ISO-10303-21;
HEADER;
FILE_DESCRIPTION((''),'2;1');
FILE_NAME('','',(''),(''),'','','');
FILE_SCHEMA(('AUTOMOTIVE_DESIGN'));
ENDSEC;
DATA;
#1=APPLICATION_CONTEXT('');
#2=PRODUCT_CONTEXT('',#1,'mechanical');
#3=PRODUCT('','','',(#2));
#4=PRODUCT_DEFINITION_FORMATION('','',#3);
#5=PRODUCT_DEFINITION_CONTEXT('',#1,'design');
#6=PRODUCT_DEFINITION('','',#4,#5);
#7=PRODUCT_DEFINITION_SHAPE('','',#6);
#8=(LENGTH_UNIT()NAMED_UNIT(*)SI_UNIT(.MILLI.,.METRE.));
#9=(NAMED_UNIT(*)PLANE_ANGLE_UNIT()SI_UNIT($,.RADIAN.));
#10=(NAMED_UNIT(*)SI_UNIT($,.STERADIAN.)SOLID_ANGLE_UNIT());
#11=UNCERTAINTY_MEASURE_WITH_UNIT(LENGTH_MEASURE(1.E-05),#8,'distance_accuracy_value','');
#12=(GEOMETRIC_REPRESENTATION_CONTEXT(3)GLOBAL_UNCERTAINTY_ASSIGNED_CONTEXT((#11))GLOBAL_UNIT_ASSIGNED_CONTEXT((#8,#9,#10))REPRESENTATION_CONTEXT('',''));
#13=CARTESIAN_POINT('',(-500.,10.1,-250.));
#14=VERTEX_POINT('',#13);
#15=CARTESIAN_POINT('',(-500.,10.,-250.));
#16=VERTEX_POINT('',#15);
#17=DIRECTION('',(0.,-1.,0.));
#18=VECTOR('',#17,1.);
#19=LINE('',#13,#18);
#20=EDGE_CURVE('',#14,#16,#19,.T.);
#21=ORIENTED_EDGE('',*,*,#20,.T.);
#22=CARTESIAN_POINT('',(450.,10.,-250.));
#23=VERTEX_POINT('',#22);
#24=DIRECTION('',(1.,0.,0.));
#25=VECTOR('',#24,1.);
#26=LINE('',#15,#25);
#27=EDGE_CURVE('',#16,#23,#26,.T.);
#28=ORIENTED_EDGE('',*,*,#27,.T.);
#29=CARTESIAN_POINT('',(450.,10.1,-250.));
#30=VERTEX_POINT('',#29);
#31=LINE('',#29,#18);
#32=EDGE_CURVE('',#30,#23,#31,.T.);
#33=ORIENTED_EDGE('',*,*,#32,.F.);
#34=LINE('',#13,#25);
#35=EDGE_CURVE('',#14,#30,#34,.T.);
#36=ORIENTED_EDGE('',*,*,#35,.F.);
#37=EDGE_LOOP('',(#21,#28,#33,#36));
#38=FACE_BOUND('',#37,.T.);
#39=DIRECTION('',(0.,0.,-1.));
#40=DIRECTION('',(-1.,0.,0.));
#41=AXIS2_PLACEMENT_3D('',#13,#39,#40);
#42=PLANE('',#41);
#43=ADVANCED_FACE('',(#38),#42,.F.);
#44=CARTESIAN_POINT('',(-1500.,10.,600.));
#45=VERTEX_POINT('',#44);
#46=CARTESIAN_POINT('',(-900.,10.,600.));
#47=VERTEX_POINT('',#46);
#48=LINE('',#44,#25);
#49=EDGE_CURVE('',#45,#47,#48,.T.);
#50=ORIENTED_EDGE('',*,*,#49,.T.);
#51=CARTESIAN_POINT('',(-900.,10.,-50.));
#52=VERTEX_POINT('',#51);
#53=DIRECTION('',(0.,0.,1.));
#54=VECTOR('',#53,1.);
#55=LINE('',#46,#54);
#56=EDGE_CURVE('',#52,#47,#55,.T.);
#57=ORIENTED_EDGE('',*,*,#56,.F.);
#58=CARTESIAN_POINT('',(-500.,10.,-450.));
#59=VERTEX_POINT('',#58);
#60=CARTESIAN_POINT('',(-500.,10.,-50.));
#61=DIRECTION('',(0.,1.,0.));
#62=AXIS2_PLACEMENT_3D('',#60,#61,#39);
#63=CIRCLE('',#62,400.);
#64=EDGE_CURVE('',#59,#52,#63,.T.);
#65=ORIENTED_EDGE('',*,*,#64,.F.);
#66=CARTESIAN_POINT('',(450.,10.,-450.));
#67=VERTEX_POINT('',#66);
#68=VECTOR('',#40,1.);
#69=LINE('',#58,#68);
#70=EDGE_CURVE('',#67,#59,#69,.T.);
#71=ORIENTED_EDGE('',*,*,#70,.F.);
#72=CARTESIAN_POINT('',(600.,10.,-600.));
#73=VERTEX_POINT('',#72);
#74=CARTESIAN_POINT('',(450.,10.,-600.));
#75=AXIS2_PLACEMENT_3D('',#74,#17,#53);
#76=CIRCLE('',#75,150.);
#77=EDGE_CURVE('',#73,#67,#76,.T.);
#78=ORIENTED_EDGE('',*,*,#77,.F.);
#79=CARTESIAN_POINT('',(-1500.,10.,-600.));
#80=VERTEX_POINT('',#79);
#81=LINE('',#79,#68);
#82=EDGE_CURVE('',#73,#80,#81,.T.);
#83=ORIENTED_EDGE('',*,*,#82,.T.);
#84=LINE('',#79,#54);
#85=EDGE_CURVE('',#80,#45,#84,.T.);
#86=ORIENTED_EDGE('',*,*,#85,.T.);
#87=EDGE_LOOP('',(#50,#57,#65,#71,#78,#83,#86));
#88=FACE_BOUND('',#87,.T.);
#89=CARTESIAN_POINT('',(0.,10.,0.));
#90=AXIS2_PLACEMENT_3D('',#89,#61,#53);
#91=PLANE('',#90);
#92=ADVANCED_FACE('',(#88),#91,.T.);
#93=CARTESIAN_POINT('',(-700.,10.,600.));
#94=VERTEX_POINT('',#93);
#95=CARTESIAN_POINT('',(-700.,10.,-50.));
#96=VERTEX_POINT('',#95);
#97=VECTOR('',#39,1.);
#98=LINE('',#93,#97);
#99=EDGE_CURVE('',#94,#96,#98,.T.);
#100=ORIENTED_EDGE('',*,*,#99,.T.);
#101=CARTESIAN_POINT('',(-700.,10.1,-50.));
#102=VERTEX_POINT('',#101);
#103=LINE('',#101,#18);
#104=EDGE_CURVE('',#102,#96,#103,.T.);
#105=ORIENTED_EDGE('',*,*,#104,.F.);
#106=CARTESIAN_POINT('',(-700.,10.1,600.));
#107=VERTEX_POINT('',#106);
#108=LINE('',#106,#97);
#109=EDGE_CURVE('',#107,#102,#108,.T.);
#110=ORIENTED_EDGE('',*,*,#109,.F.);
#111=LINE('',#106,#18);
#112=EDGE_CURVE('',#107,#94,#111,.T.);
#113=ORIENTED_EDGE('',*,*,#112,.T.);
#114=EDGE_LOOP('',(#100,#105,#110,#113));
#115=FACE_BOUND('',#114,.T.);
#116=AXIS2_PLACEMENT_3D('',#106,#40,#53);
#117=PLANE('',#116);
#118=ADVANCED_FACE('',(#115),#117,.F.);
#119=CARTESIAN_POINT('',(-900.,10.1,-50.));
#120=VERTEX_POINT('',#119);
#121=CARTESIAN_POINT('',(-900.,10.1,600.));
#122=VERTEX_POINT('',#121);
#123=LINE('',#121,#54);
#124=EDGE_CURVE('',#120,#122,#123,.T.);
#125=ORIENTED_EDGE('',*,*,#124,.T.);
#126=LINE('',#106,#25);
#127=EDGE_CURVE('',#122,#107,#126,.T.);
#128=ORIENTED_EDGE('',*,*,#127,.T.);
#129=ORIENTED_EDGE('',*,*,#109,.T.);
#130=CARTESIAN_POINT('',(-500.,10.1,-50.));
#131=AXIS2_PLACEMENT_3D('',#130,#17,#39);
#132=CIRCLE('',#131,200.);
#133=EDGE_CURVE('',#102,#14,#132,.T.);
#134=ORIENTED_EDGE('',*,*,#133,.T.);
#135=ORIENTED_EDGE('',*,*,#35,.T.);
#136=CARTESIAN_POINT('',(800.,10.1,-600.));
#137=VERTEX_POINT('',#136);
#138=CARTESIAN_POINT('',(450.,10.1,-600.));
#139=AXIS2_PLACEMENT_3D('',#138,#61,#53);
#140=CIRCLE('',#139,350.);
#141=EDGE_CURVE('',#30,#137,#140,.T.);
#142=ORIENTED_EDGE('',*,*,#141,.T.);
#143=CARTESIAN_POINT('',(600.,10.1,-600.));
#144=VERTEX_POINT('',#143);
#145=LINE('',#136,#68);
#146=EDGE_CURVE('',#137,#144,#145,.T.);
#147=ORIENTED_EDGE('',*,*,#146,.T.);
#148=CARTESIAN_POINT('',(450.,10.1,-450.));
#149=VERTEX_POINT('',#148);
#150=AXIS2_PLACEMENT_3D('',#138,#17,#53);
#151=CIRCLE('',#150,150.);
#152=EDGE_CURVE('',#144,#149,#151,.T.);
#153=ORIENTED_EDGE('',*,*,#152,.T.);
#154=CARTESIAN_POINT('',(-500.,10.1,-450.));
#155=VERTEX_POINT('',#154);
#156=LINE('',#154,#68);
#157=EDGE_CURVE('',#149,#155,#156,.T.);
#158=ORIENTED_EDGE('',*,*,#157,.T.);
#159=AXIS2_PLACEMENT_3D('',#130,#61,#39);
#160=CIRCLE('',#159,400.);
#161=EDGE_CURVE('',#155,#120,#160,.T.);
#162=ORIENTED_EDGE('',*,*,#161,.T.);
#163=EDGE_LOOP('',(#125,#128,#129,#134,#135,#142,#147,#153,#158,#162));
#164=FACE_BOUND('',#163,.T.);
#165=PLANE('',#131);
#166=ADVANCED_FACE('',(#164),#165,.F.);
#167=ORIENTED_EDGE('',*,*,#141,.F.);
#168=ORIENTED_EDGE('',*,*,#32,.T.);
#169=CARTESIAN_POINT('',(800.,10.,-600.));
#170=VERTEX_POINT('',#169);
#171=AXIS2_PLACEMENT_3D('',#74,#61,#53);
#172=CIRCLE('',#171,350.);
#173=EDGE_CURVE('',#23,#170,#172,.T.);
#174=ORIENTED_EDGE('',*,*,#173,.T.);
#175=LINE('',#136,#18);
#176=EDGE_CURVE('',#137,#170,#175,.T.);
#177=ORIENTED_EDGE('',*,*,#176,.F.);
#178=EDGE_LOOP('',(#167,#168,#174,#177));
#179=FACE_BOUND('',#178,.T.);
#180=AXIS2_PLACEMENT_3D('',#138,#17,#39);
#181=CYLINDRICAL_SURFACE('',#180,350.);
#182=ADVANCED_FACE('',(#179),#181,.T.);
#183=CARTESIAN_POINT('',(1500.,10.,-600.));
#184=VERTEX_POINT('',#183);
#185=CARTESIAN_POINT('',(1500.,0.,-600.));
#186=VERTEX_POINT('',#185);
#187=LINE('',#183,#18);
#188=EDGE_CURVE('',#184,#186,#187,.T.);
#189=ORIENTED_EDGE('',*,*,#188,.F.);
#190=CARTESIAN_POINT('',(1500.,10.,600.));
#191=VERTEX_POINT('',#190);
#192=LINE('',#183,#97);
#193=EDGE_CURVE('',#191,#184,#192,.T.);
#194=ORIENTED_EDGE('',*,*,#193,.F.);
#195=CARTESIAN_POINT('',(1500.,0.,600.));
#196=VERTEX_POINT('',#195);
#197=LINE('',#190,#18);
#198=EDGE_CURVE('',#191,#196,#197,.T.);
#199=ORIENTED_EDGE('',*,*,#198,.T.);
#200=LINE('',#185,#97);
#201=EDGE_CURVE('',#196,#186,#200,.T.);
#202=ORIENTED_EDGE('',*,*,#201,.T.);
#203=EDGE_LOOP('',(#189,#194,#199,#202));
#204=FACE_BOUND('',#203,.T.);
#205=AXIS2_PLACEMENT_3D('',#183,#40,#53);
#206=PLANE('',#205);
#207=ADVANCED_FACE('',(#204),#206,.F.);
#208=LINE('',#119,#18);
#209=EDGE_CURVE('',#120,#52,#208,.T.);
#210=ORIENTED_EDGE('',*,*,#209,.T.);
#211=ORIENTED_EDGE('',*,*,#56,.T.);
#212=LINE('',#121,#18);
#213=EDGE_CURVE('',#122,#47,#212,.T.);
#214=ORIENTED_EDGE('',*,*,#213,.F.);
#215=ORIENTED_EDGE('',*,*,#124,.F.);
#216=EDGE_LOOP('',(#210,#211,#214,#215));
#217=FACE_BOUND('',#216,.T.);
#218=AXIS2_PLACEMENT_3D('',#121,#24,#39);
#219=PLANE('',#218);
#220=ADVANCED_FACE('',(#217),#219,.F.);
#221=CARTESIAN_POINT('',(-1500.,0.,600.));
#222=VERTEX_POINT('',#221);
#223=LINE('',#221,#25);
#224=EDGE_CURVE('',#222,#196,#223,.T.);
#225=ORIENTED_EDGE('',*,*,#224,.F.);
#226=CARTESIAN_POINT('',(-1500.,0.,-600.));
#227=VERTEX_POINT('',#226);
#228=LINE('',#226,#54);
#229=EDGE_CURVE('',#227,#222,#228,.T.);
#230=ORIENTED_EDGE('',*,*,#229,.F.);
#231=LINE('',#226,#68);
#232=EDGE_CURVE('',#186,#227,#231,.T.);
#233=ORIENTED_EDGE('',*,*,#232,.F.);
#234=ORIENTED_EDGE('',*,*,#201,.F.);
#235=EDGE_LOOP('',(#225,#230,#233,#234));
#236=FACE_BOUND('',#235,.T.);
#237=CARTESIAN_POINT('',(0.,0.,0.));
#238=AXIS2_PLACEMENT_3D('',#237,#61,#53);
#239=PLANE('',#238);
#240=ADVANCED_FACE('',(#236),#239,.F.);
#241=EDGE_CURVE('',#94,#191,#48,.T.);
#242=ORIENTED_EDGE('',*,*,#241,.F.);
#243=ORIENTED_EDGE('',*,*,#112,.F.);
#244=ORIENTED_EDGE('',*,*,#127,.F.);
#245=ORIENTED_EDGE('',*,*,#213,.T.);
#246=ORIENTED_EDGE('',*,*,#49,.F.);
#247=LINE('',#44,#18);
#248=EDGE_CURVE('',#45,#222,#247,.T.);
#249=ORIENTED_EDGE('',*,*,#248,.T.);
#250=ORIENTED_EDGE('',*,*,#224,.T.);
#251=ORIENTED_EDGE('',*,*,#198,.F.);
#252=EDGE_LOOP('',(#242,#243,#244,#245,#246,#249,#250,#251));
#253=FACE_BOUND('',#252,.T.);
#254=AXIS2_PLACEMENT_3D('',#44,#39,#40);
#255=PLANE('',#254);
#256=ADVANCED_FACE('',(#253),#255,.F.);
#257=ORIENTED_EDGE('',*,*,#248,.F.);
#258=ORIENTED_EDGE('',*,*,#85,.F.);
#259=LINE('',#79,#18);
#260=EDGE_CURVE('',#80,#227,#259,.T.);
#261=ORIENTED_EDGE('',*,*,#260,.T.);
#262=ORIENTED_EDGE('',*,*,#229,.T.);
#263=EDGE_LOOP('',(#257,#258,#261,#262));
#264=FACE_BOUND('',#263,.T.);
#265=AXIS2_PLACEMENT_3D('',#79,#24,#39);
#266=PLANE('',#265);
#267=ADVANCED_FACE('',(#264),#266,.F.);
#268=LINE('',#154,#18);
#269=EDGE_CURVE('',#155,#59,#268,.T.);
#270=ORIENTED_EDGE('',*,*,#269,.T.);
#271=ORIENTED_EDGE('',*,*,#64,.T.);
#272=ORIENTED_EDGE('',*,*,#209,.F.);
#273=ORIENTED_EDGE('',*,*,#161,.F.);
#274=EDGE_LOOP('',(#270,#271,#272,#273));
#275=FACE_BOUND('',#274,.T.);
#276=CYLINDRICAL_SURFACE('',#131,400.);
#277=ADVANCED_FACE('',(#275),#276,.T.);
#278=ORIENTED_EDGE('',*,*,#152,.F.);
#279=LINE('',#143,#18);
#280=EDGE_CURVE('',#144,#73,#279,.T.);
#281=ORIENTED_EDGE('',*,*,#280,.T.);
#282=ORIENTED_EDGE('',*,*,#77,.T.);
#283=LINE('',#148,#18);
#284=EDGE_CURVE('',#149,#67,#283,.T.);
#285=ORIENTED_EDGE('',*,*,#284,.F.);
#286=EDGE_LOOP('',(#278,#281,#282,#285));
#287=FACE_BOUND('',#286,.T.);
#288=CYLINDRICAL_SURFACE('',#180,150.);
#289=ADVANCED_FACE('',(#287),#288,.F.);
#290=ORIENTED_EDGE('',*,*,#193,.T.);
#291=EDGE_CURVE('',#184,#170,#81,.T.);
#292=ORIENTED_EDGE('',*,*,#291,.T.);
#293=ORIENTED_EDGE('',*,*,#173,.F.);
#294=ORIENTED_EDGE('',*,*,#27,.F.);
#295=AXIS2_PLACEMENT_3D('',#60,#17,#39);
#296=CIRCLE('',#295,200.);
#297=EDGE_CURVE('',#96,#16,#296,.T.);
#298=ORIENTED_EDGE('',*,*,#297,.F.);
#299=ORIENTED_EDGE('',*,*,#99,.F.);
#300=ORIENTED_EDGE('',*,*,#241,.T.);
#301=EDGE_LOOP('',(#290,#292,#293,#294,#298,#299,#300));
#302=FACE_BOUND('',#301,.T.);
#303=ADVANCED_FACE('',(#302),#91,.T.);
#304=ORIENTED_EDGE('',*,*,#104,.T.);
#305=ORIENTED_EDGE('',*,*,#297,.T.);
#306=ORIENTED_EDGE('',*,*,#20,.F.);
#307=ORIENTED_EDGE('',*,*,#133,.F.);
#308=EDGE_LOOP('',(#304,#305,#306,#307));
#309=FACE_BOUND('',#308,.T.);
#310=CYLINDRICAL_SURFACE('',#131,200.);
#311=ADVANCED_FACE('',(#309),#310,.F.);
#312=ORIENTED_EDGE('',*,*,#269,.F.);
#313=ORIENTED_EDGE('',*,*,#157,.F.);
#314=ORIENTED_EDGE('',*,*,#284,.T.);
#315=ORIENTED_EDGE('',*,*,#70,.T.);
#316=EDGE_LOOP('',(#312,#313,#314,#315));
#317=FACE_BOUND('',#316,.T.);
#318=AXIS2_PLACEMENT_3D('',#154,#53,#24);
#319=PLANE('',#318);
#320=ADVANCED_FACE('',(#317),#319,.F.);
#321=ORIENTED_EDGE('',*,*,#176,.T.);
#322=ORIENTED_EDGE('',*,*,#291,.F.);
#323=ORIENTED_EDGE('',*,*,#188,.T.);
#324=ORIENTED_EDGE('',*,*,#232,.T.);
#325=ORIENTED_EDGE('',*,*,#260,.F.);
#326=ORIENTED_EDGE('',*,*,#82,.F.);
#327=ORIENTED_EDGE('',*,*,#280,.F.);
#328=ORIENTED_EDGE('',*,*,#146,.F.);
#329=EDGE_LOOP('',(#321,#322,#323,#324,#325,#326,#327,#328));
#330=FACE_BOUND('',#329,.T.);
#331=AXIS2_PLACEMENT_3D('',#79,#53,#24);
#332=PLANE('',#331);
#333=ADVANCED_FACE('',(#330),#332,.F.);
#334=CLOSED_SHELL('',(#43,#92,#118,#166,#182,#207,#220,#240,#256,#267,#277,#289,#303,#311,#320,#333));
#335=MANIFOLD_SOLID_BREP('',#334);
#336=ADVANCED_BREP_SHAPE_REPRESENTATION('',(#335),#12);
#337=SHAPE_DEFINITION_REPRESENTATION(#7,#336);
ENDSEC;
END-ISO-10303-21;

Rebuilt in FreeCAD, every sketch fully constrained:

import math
import FreeCAD as App
import Part
import Sketcher

V = App.Vector
Q = App.Units.Quantity


def add_polygon(sketch, points):
    """Adds a closed chain of lines whose ends are joined by coincident constraints."""
    first, n = sketch.GeometryCount, len(points)
    for a, b in zip(points, points[1:] + points[:1]):
        sketch.addGeometry(Part.LineSegment(App.Vector(*a, 0), App.Vector(*b, 0)), False)
    for i in range(n):
        sketch.addConstraint(Sketcher.Constraint("Coincident", first + i, 2, first + (i + 1) % n, 1))

doc = App.newDocument("Part")
body = doc.addObject("PartDesign::Body", "Body")

sketch1 = body.newObject("Sketcher::SketchObject", "Sketch")
sketch1.AttachmentSupport = (doc.getObject("XZ_Plane"), [""])
sketch1.MapMode = "FlatFace"
add_polygon(sketch1, [(-1500, -600), (-1500, 600), (1500, 600), (1500, -600)])
sketch1.addConstraint([
    Sketcher.Constraint("Vertical", 0),
    Sketcher.Constraint("Horizontal", 1),
    Sketcher.Constraint("Vertical", 2),
    Sketcher.Constraint("Horizontal", 3),
    Sketcher.Constraint("Symmetric", 0, 2, 2, 2, -1, 1),
    Sketcher.Constraint("DistanceX", 1, 1, 1, 2, Q("3000 mm")),
    Sketcher.Constraint("DistanceY", 0, 1, 0, 2, Q("1200 mm")),
])
pad1 = body.newObject("PartDesign::Pad", "Pad")
pad1.Profile = sketch1
pad1.Length = 10
pad1.Reversed = True

sketch2 = body.newObject("Sketcher::SketchObject", "Sketch001")
sketch2.AttachmentSupport = (doc.getObject("XZ_Plane"), [""])
sketch2.MapMode = "FlatFace"
sketch2.AttachmentOffset = App.Placement(V(0, 0, -10), App.Rotation())
sketch2.addGeometry([
    Part.LineSegment(V(-700, 600, 0), V(-700, -50, 0)),
    Part.ArcOfCircle(Part.Circle(V(-500, -50, 0), V(0, 0, 1), 200), math.radians(-180), math.radians(-90)),
    Part.LineSegment(V(-500, -250, 0), V(450, -250, 0)),
    Part.ArcOfCircle(Part.Circle(V(450, -600, 0), V(0, 0, 1), 350), math.radians(0), math.radians(90)),
    Part.LineSegment(V(800, -600, 0), V(600, -600, 0)),
    Part.ArcOfCircle(Part.Circle(V(450, -600, 0), V(0, 0, 1), 150), math.radians(0), math.radians(90)),
    Part.LineSegment(V(450, -450, 0), V(-500, -450, 0)),
    Part.ArcOfCircle(Part.Circle(V(-500, -50, 0), V(0, 0, 1), 400), math.radians(180), math.radians(270)),
    Part.LineSegment(V(-900, -50, 0), V(-900, 600, 0)),
    Part.LineSegment(V(-900, 600, 0), V(-700, 600, 0)),
], False)
sketch2.addConstraint([
    Sketcher.Constraint("Tangent", 0, 2, 1, 1),
    Sketcher.Constraint("Tangent", 1, 2, 2, 1),
    Sketcher.Constraint("Tangent", 2, 2, 3, 2),
    Sketcher.Constraint("Coincident", 3, 1, 4, 1),
    Sketcher.Constraint("Coincident", 4, 2, 5, 1),
    Sketcher.Constraint("Tangent", 5, 2, 6, 1),
    Sketcher.Constraint("Tangent", 6, 2, 7, 2),
    Sketcher.Constraint("Tangent", 7, 1, 8, 1),
    Sketcher.Constraint("Coincident", 8, 2, 9, 1),
    Sketcher.Constraint("Coincident", 9, 2, 0, 1),
    Sketcher.Constraint("Vertical", 0),
    Sketcher.Constraint("Horizontal", 2),
    Sketcher.Constraint("Horizontal", 4),
    Sketcher.Constraint("Horizontal", 6),
    Sketcher.Constraint("Vertical", 8),
    Sketcher.Constraint("Horizontal", 9),
    Sketcher.Constraint("Coincident", 5, 3, 3, 3),
    Sketcher.Constraint("Coincident", 7, 3, 1, 3),
    Sketcher.Constraint("Horizontal", 5, 3, 3, 1),
    Sketcher.Constraint("Radius", 1, Q("200 mm")),
    Sketcher.Constraint("Radius", 3, Q("350 mm")),
    Sketcher.Constraint("Radius", 5, Q("150 mm")),
    Sketcher.Constraint("DistanceX", 2, 1, 2, 2, Q("950 mm")),
    Sketcher.Constraint("DistanceY", 0, 2, 0, 1, Q("650 mm")),
    Sketcher.Constraint("DistanceX", 1, 3, -1, 1, Q("500 mm")),
    Sketcher.Constraint("DistanceY", 1, 3, -1, 1, Q("50 mm")),
])
pad2 = body.newObject("PartDesign::Pad", "Pad001")
pad2.Profile = sketch2
pad2.Length = 0.1
pad2.Reversed = True

doc.recompute()
